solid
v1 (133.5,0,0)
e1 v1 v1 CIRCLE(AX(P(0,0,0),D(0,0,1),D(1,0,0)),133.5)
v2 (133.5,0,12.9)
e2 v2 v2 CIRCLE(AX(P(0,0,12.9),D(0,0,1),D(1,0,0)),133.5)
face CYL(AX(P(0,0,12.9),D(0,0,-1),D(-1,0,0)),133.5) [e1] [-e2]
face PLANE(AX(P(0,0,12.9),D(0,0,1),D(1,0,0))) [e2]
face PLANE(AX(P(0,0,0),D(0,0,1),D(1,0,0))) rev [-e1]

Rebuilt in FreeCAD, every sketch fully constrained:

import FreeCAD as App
import Part
import Sketcher
Q = App.Units.Quantity

doc = App.newDocument("Part")
body = doc.addObject("PartDesign::Body", "Body")

# Sketch on XY plane
sketch1 = body.newObject("Sketcher::SketchObject", "Sketch")
sketch1.AttachmentSupport = (doc.getObject("XY_Plane"), [""])
sketch1.MapMode = "FlatFace"
sketch1.addGeometry(Part.Circle(App.Vector(0, 0, 0), App.Vector(0, 0, 1), 134), False)
sketch1.addConstraint(Sketcher.Constraint("Coincident", 0, 3, -1, 1))
sketch1.addConstraint(Sketcher.Constraint("Diameter", 0, Q("267 mm")))
pad1 = body.newObject("PartDesign::Pad", "Pad")
pad1.Profile = sketch1
pad1.Length = 12.9

doc.recompute()
